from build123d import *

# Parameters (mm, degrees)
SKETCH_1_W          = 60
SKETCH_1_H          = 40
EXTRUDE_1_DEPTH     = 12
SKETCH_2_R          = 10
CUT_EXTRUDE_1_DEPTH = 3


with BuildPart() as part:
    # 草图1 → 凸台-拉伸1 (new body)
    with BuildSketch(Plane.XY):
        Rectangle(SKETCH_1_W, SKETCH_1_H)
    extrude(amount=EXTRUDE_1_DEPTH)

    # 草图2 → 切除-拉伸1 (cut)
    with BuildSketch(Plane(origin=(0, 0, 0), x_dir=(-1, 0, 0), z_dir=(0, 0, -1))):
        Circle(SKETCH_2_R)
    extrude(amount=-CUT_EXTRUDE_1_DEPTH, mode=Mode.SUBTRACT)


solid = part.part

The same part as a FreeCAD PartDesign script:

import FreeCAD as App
import Part
import Sketcher


def add_polygon(sketch, points):
    """Adds a closed chain of lines whose ends are joined by coincident constraints."""
    first, n = sketch.GeometryCount, len(points)
    for a, b in zip(points, points[1:] + points[:1]):
        sketch.addGeometry(Part.LineSegment(App.Vector(*a, 0), App.Vector(*b, 0)), False)
    for i in range(n):
        sketch.addConstraint(Sketcher.Constraint("Coincident", first + i, 2, first + (i + 1) % n, 1))

doc = App.newDocument("Part")
body = doc.addObject("PartDesign::Body", "Body")

# Sketch on XY plane
sketch1 = doc.addObject("Sketcher::SketchObject", "Sketch")
body.addObject(sketch1)
sketch1.AttachmentSupport = (doc.XY_Plane, [""])
sketch1.MapMode = "FlatFace"
add_polygon(sketch1, [(-30, 20), (-30, -20), (30, -20), (30, 20)])  # lines 0-3
sketch1.addConstraint(Sketcher.Constraint("Vertical", 0))
sketch1.addConstraint(Sketcher.Constraint("Horizontal", 1))
sketch1.addConstraint(Sketcher.Constraint("Vertical", 2))
sketch1.addConstraint(Sketcher.Constraint("Horizontal", 3))
sketch1.addConstraint(Sketcher.Constraint("Symmetric", 0, 2, 2, 2, -1, 1))
sketch1.addConstraint(Sketcher.Constraint("DistanceX", 1, 1, 1, 2, 60.0))
sketch1.addConstraint(Sketcher.Constraint("DistanceY", 0, 2, 0, 1, 40.0))
pad1 = doc.addObject("PartDesign::Pad", "Pad")
body.addObject(pad1)
pad1.Profile = sketch1
pad1.Length = 12

# Sketch on XY plane
sketch2 = doc.addObject("Sketcher::SketchObject", "Sketch001")
body.addObject(sketch2)
sketch2.AttachmentSupport = (doc.XY_Plane, [""])
sketch2.MapMode = "FlatFace"
sketch2.addGeometry(Part.Circle(App.Vector(0, 0, 0), App.Vector(0, 0, 1), 10), False)
sketch2.addConstraint(Sketcher.Constraint("Coincident", 0, 3, -1, 1))
sketch2.addConstraint(Sketcher.Constraint("Diameter", 0, 20.0))
pocket1 = doc.addObject("PartDesign::Pocket", "Pocket")
body.addObject(pocket1)
pocket1.Profile = sketch2
pocket1.Length = 3
pocket1.Reversed = True

doc.recompute()
